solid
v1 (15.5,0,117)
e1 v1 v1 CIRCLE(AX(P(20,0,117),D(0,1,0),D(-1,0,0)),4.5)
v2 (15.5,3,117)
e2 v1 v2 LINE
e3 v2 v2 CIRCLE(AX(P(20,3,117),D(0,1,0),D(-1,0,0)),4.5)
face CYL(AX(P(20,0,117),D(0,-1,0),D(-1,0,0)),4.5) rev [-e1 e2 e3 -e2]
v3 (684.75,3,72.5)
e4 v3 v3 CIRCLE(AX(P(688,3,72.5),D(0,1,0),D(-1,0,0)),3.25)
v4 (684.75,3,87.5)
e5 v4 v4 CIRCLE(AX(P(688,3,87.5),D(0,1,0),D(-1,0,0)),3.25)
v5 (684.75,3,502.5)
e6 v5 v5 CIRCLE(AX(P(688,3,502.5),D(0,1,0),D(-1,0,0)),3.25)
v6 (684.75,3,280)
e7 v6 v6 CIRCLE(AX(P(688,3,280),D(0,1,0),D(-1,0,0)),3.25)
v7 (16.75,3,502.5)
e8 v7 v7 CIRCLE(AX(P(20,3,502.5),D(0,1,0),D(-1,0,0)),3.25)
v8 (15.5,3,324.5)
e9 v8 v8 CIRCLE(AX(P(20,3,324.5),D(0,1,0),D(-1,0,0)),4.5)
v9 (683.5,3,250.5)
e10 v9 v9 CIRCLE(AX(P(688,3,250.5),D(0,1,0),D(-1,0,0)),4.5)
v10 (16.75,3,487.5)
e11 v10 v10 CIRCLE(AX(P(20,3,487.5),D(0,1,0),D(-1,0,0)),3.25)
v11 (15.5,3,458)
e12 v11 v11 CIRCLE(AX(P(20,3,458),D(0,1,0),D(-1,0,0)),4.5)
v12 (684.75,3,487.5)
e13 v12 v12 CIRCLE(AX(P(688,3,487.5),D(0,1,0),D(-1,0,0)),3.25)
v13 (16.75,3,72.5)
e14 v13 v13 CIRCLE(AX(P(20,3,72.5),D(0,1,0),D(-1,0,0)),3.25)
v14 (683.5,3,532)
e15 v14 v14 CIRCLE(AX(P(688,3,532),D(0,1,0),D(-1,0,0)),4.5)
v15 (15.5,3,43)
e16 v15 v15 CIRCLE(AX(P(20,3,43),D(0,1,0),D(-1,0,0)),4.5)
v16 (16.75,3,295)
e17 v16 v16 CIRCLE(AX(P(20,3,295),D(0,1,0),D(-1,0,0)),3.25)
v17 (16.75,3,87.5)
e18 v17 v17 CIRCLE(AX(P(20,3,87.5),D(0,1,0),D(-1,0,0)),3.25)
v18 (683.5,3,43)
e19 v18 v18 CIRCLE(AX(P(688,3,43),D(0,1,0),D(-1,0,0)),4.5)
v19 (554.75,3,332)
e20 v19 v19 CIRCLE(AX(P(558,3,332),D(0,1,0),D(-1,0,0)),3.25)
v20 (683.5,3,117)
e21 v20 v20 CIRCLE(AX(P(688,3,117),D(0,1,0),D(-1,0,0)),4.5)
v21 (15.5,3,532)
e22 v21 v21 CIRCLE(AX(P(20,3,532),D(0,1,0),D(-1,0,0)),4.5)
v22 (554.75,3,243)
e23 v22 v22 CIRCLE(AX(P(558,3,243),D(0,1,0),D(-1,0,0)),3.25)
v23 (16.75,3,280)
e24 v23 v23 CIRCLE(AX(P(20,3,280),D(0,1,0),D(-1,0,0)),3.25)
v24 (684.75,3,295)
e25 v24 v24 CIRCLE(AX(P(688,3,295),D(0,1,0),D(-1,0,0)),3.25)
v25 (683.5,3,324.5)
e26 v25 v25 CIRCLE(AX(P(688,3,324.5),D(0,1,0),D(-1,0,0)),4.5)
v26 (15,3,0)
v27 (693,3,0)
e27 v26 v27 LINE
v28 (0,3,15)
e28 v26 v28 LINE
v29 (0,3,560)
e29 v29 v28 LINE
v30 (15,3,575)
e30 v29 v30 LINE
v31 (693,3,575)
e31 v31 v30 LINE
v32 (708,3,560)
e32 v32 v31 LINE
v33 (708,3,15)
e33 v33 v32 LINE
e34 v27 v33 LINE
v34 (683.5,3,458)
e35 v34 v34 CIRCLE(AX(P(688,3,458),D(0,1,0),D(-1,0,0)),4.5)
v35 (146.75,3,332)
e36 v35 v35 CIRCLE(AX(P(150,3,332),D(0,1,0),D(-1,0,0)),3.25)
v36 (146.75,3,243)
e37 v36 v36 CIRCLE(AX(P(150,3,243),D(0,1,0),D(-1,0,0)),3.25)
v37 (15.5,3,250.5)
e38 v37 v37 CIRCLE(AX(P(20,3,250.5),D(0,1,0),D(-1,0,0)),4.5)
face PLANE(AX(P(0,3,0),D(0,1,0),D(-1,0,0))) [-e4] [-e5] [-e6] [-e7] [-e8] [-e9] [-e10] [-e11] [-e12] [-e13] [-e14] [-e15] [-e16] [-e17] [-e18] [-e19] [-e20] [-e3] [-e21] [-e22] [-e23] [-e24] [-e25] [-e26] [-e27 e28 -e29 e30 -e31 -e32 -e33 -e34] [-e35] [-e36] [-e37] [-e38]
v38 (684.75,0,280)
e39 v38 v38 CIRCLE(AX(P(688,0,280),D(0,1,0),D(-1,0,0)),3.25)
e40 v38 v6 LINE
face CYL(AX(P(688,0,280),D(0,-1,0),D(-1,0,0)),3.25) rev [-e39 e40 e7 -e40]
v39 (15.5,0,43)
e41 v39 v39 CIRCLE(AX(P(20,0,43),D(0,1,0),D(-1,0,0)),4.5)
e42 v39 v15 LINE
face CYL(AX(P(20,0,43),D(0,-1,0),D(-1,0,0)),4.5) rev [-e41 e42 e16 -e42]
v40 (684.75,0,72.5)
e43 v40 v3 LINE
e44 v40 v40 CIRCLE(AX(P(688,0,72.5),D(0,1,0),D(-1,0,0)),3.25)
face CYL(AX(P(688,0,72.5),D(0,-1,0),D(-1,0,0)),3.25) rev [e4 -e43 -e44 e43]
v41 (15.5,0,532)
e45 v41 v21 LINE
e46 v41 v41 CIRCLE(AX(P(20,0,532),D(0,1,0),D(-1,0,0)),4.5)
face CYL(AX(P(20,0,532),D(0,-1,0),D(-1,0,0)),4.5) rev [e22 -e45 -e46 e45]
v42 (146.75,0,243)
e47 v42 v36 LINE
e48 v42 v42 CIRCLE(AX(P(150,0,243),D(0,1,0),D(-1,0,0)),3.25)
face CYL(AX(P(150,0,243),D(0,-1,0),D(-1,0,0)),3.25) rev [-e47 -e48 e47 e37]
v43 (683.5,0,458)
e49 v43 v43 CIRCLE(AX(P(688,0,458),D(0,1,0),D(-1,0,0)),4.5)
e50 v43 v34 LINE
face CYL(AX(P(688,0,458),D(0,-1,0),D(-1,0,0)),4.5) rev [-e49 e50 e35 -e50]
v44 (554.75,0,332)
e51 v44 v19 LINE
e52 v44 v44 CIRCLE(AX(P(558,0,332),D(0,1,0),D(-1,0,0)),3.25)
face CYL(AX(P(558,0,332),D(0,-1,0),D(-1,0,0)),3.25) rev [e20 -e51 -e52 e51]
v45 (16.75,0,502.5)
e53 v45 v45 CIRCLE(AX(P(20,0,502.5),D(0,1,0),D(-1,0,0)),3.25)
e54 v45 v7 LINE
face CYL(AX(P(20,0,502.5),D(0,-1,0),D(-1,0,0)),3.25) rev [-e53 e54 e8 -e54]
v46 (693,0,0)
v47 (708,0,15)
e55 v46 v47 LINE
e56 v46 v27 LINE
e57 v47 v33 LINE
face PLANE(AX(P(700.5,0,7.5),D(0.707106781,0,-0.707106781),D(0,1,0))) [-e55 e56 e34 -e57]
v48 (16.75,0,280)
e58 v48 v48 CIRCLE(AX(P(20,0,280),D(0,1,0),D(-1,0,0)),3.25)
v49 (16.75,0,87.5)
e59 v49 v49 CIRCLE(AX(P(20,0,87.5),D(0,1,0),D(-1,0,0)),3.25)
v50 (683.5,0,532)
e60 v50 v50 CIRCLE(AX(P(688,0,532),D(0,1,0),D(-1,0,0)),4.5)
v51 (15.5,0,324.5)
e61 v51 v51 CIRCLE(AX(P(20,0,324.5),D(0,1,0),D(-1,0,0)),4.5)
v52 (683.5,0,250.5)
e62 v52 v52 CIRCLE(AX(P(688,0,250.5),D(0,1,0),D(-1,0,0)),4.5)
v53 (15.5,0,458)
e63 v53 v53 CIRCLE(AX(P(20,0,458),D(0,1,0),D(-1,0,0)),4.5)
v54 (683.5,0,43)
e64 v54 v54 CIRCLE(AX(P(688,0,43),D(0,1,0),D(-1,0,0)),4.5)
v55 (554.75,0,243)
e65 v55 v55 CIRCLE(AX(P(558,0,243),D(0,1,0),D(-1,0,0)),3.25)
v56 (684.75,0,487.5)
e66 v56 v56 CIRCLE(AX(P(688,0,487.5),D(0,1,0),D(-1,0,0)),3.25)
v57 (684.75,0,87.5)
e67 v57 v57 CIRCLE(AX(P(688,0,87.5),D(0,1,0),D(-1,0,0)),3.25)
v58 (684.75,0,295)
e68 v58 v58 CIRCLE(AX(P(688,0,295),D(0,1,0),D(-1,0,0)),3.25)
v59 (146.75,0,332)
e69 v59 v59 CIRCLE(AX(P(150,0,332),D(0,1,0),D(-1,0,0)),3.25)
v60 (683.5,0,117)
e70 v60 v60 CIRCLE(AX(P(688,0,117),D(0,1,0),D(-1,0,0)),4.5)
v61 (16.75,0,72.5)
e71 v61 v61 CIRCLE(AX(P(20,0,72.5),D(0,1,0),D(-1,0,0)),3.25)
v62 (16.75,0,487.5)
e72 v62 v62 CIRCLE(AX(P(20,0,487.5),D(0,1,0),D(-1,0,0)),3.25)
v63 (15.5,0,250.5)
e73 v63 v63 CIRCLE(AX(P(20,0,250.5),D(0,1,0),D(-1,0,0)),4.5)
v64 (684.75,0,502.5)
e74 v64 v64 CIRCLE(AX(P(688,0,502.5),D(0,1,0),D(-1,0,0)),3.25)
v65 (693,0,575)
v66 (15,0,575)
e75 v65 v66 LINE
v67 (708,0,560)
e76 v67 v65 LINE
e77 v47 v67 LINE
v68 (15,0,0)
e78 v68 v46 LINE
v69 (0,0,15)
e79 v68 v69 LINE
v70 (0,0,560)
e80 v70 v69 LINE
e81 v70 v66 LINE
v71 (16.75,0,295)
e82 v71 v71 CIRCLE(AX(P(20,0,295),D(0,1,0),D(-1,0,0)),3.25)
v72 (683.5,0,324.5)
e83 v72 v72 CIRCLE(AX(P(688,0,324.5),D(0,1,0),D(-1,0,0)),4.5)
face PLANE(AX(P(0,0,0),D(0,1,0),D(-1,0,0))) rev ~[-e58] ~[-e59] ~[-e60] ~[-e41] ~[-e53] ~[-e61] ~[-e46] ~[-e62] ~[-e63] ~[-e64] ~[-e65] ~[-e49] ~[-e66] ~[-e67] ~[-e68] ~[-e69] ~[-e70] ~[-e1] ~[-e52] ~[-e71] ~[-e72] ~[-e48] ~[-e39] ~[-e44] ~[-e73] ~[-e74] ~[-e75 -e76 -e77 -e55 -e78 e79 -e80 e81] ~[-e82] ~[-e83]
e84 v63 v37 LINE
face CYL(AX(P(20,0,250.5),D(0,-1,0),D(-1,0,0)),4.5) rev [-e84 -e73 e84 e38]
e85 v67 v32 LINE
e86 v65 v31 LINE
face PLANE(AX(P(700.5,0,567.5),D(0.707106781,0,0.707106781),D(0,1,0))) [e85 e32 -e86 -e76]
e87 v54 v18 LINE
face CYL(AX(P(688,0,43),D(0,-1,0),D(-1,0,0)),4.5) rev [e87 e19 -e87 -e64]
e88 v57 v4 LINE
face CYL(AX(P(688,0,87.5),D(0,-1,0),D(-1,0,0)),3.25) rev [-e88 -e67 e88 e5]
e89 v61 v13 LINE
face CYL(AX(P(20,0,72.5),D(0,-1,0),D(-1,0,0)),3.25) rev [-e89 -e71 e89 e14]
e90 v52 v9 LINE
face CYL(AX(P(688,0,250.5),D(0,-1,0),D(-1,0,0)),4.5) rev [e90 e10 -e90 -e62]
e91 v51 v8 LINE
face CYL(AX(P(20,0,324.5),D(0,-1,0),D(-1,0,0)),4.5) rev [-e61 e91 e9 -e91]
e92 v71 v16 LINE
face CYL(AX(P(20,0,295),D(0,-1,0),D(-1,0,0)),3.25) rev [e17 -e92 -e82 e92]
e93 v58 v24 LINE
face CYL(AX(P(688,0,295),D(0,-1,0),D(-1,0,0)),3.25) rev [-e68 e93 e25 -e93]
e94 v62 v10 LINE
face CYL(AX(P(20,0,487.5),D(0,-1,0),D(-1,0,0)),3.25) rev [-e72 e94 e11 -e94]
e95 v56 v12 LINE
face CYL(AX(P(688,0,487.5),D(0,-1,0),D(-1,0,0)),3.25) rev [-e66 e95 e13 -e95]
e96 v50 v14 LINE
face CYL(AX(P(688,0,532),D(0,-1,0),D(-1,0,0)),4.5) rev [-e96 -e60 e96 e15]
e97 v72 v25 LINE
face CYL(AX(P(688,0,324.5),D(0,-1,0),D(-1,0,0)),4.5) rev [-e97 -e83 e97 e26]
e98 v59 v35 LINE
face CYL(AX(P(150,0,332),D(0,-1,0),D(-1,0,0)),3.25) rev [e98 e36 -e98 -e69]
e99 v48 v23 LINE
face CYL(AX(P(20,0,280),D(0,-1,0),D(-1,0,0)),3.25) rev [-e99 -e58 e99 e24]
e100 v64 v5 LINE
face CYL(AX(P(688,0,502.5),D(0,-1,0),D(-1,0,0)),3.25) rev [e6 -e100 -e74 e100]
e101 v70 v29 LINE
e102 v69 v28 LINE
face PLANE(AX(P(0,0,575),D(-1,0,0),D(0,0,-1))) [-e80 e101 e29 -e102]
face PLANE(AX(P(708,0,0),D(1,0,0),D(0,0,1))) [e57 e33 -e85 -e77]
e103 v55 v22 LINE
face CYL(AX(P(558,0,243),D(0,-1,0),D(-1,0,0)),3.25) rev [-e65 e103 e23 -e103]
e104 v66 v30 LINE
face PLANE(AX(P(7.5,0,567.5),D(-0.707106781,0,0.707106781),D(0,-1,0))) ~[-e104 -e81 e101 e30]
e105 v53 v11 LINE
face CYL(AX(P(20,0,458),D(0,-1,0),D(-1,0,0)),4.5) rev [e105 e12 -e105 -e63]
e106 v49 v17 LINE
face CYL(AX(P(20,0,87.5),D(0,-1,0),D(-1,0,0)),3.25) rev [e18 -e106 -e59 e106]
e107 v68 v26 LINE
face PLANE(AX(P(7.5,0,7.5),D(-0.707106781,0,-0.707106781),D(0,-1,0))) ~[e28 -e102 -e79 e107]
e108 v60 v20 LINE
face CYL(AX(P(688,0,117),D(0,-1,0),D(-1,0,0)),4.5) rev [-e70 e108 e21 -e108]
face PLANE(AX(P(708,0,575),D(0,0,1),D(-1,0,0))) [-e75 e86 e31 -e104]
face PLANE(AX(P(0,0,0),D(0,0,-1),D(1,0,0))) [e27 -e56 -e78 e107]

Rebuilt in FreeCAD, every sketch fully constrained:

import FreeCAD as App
import Part
import Sketcher

V = App.Vector


def edges_at(feature, points):
    """Names of the edges that pass closest to the given points."""
    edges = feature.Shape.Edges
    near = lambda p: min(range(len(edges)), key=lambda i: edges[i].distToShape(Part.Vertex(*p))[0])
    return sorted({f"Edge{near(p) + 1}" for p in points})

doc = App.newDocument("Part")
params = doc.addObject("Spreadsheet::Sheet", "Params")
for row, (alias, value) in enumerate([
    ("sketch1_diameter", "9 mm"),
    ("sketch1_diameter2", "6.5 mm"),
    ("sketch1_width", "708 mm"),
    ("sketch1_height", "575 mm"),
    ("pad1_length", "3 mm"),
    ("chamfer_size", "15 mm"),
], start=1):
    params.set(f"A{row}", alias)
    params.set(f"B{row}", "=" + value)
    params.setAlias(f"B{row}", alias)

body = doc.addObject("PartDesign::Body", "Body")

# Sketch on XZ plane
sketch1 = body.newObject("Sketcher::SketchObject", "Sketch")
sketch1.AttachmentSupport = (doc.getObject("XZ_Plane"), [""])
sketch1.MapMode = "FlatFace"
sketch1.addGeometry([
    Part.LineSegment(V(708, 0, 0), V(0, 0, 0)),  # 0
    Part.LineSegment(V(0, 0, 0), V(0, 575, 0)),  # 1
    Part.LineSegment(V(0, 575, 0), V(708, 575, 0)),  # 2
    Part.LineSegment(V(708, 575, 0), V(708, 0, 0)),  # 3
    Part.Circle(V(688, 43, 0), V(0, 0, 1), 4.5),  # 4
    Part.Circle(V(688, 72.5, 0), V(0, 0, 1), 3.2),  # 5
    Part.Circle(V(688, 87.5, 0), V(0, 0, 1), 3.2),  # 6
    Part.Circle(V(688, 117, 0), V(0, 0, 1), 4.5),  # 7
    Part.Circle(V(688, 250.5, 0), V(0, 0, 1), 4.5),  # 8
    Part.Circle(V(688, 280, 0), V(0, 0, 1), 3.2),  # 9
    Part.Circle(V(558, 243, 0), V(0, 0, 1), 3.2),  # 10
    Part.Circle(V(20, 43, 0), V(0, 0, 1), 4.5),  # 11
    Part.Circle(V(20, 72.5, 0), V(0, 0, 1), 3.2),  # 12
    Part.Circle(V(20, 87.5, 0), V(0, 0, 1), 3.2),  # 13
    Part.Circle(V(20, 117, 0), V(0, 0, 1), 4.5),  # 14
    Part.Circle(V(150, 243, 0), V(0, 0, 1), 3.2),  # 15
    Part.Circle(V(20, 250.5, 0), V(0, 0, 1), 4.5),  # 16
    Part.Circle(V(20, 280, 0), V(0, 0, 1), 3.2),  # 17
    Part.Circle(V(688, 295, 0), V(0, 0, 1), 3.2),  # 18
    Part.Circle(V(688, 324.5, 0), V(0, 0, 1), 4.5),  # 19
    Part.Circle(V(558, 332, 0), V(0, 0, 1), 3.2),  # 20
    Part.Circle(V(688, 458, 0), V(0, 0, 1), 4.5),  # 21
    Part.Circle(V(688, 487.5, 0), V(0, 0, 1), 3.2),  # 22
    Part.Circle(V(688, 502.5, 0), V(0, 0, 1), 3.2),  # 23
    Part.Circle(V(688, 532, 0), V(0, 0, 1), 4.5),  # 24
    Part.Circle(V(150, 332, 0), V(0, 0, 1), 3.2),  # 25
    Part.Circle(V(20, 295, 0), V(0, 0, 1), 3.2),  # 26
    Part.Circle(V(20, 324.5, 0), V(0, 0, 1), 4.5),  # 27
    Part.Circle(V(20, 458, 0), V(0, 0, 1), 4.5),  # 28
    Part.Circle(V(20, 487.5, 0), V(0, 0, 1), 3.2),  # 29
    Part.Circle(V(20, 502.5, 0), V(0, 0, 1), 3.2),  # 30
    Part.Circle(V(20, 532, 0), V(0, 0, 1), 4.5),  # 31
], False)
sketch1.addConstraint([
    Sketcher.Constraint("Coincident", 0, 2, 1, 1),
    Sketcher.Constraint("Coincident", 1, 2, 2, 1),
    Sketcher.Constraint("Coincident", 2, 2, 3, 1),
    Sketcher.Constraint("Coincident", 3, 2, 0, 1),
    Sketcher.Constraint("Horizontal", 0),
    Sketcher.Constraint("Vertical", 1),
    Sketcher.Constraint("Horizontal", 2),
    Sketcher.Constraint("Vertical", 3),
    Sketcher.Constraint("Coincident", 0, 2, -1, 1),
    Sketcher.Constraint("Equal", 5, 6),
    Sketcher.Constraint("Equal", 4, 7),
    Sketcher.Constraint("Equal", 7, 8),
    Sketcher.Constraint("Equal", 6, 9),
    Sketcher.Constraint("Equal", 9, 10),
    Sketcher.Constraint("Equal", 8, 11),
    Sketcher.Constraint("Equal", 10, 12),
    Sketcher.Constraint("Equal", 12, 13),
    Sketcher.Constraint("Equal", 11, 14),
    Sketcher.Constraint("Equal", 13, 15),
    Sketcher.Constraint("Equal", 14, 16),
    Sketcher.Constraint("Equal", 15, 17),
    Sketcher.Constraint("Equal", 17, 18),
    Sketcher.Constraint("Equal", 16, 19),
    Sketcher.Constraint("Equal", 18, 20),
    Sketcher.Constraint("Equal", 19, 21),
    Sketcher.Constraint("Equal", 20, 22),
    Sketcher.Constraint("Equal", 22, 23),
    Sketcher.Constraint("Equal", 21, 24),
    Sketcher.Constraint("Equal", 23, 25),
    Sketcher.Constraint("Equal", 25, 26),
    Sketcher.Constraint("Equal", 24, 27),
    Sketcher.Constraint("Equal", 27, 28),
    Sketcher.Constraint("Equal", 26, 29),
    Sketcher.Constraint("Equal", 29, 30),
    Sketcher.Constraint("Equal", 28, 31),
    Sketcher.Constraint("Horizontal", 4, 3, 11, 3),
    Sketcher.Constraint("Horizontal", 5, 3, 12, 3),
    Sketcher.Constraint("Horizontal", 6, 3, 13, 3),
    Sketcher.Constraint("Horizontal", 7, 3, 14, 3),
    Sketcher.Constraint("Horizontal", 10, 3, 15, 3),
    Sketcher.Constraint("Horizontal", 8, 3, 16, 3),
    Sketcher.Constraint("Horizontal", 9, 3, 17, 3),
    Sketcher.Constraint("Horizontal", 20, 3, 25, 3),
    Sketcher.Constraint("Horizontal", 18, 3, 26, 3),
    Sketcher.Constraint("Horizontal", 19, 3, 27, 3),
    Sketcher.Constraint("Horizontal", 21, 3, 28, 3),
    Sketcher.Constraint("Horizontal", 22, 3, 29, 3),
    Sketcher.Constraint("Horizontal", 23, 3, 30, 3),
    Sketcher.Constraint("Horizontal", 24, 3, 31, 3),
    Sketcher.Constraint("Vertical", 4, 3, 5, 3),
    Sketcher.Constraint("Vertical", 5, 3, 6, 3),
    Sketcher.Constraint("Vertical", 6, 3, 7, 3),
    Sketcher.Constraint("Vertical", 7, 3, 8, 3),
    Sketcher.Constraint("Vertical", 8, 3, 9, 3),
    Sketcher.Constraint("Vertical", 11, 3, 12, 3),
    Sketcher.Constraint("Vertical", 12, 3, 13, 3),
    Sketcher.Constraint("Vertical", 13, 3, 14, 3),
    Sketcher.Constraint("Vertical", 14, 3, 16, 3),
    Sketcher.Constraint("Vertical", 16, 3, 17, 3),
    Sketcher.Constraint("Vertical", 9, 3, 18, 3),
    Sketcher.Constraint("Vertical", 18, 3, 19, 3),
    Sketcher.Constraint("Vertical", 10, 3, 20, 3),
    Sketcher.Constraint("Vertical", 19, 3, 21, 3),
    Sketcher.Constraint("Vertical", 21, 3, 22, 3),
    Sketcher.Constraint("Vertical", 22, 3, 23, 3),
    Sketcher.Constraint("Vertical", 23, 3, 24, 3),
    Sketcher.Constraint("Vertical", 15, 3, 25, 3),
    Sketcher.Constraint("Vertical", 17, 3, 26, 3),
    Sketcher.Constraint("Vertical", 26, 3, 27, 3),
    Sketcher.Constraint("Vertical", 27, 3, 28, 3),
    Sketcher.Constraint("Vertical", 28, 3, 29, 3),
    Sketcher.Constraint("Vertical", 29, 3, 30, 3),
    Sketcher.Constraint("Vertical", 30, 3, 31, 3),
    Sketcher.Constraint("Diameter", 4, 9.0),
    Sketcher.Constraint("Diameter", 5, 6.5),
    Sketcher.Constraint("DistanceX", 0, 2, 0, 1, 708.0),
    Sketcher.Constraint("DistanceY", 1, 1, 1, 2, 575.0),
    Sketcher.Constraint("DistanceX", -1, 1, 11, 3, 20.0),
    Sketcher.Constraint("DistanceX", -1, 1, 15, 3, 150.0),
    Sketcher.Constraint("DistanceY", 10, 3, 9, 3, 37.0),
    Sketcher.Constraint("DistanceY", 18, 3, 20, 3, 37.0),
    Sketcher.Constraint("DistanceX", 24, 3, 2, 2, 20.0),
    Sketcher.Constraint("DistanceY", 4, 3, 6, 3, 44.5),
    Sketcher.Constraint("DistanceY", 5, 3, 7, 3, 44.5),
    Sketcher.Constraint("DistanceY", 10, 3, 8, 3, 7.5),
    Sketcher.Constraint("DistanceY", 8, 3, 18, 3, 44.5),
    Sketcher.Constraint("DistanceY", 9, 3, 19, 3, 44.5),
    Sketcher.Constraint("DistanceY", 21, 3, 23, 3, 44.5),
    Sketcher.Constraint("DistanceY", 22, 3, 24, 3, 44.5),
    Sketcher.Constraint("DistanceY", -1, 1, 4, 3, 43.0),
    Sketcher.Constraint("DistanceY", -1, 1, 7, 3, 117.0),
    Sketcher.Constraint("DistanceY", -1, 1, 9, 3, 280.0),
    Sketcher.Constraint("DistanceX", -1, 1, 10, 3, 558.0),
    Sketcher.Constraint("DistanceY", -1, 1, 21, 3, 458.0),
    Sketcher.Constraint("DistanceY", -1, 1, 24, 3, 532.0),
])
sketch1.setExpression("Constraints[73]", "Params.sketch1_diameter")
sketch1.setExpression("Constraints[74]", "Params.sketch1_diameter2")
sketch1.setExpression("Constraints[75]", "Params.sketch1_width")
sketch1.setExpression("Constraints[76]", "Params.sketch1_height")
pad1 = body.newObject("PartDesign::Pad", "Pad")
pad1.Profile = sketch1
pad1.setExpression("Length", "Params.pad1_length")
pad1.Reversed = True
doc.recompute()

chamfer = body.newObject("PartDesign::Chamfer", "Chamfer")
chamfer.Base = (pad1, edges_at(pad1, [
    (0, 1.5, 575),
    (708, 1.5, 575),
    (708, 1.5, 0),
    (0, 1.5, 0),
]))
chamfer.setExpression("Size", "Params.chamfer_size")

doc.recompute()
